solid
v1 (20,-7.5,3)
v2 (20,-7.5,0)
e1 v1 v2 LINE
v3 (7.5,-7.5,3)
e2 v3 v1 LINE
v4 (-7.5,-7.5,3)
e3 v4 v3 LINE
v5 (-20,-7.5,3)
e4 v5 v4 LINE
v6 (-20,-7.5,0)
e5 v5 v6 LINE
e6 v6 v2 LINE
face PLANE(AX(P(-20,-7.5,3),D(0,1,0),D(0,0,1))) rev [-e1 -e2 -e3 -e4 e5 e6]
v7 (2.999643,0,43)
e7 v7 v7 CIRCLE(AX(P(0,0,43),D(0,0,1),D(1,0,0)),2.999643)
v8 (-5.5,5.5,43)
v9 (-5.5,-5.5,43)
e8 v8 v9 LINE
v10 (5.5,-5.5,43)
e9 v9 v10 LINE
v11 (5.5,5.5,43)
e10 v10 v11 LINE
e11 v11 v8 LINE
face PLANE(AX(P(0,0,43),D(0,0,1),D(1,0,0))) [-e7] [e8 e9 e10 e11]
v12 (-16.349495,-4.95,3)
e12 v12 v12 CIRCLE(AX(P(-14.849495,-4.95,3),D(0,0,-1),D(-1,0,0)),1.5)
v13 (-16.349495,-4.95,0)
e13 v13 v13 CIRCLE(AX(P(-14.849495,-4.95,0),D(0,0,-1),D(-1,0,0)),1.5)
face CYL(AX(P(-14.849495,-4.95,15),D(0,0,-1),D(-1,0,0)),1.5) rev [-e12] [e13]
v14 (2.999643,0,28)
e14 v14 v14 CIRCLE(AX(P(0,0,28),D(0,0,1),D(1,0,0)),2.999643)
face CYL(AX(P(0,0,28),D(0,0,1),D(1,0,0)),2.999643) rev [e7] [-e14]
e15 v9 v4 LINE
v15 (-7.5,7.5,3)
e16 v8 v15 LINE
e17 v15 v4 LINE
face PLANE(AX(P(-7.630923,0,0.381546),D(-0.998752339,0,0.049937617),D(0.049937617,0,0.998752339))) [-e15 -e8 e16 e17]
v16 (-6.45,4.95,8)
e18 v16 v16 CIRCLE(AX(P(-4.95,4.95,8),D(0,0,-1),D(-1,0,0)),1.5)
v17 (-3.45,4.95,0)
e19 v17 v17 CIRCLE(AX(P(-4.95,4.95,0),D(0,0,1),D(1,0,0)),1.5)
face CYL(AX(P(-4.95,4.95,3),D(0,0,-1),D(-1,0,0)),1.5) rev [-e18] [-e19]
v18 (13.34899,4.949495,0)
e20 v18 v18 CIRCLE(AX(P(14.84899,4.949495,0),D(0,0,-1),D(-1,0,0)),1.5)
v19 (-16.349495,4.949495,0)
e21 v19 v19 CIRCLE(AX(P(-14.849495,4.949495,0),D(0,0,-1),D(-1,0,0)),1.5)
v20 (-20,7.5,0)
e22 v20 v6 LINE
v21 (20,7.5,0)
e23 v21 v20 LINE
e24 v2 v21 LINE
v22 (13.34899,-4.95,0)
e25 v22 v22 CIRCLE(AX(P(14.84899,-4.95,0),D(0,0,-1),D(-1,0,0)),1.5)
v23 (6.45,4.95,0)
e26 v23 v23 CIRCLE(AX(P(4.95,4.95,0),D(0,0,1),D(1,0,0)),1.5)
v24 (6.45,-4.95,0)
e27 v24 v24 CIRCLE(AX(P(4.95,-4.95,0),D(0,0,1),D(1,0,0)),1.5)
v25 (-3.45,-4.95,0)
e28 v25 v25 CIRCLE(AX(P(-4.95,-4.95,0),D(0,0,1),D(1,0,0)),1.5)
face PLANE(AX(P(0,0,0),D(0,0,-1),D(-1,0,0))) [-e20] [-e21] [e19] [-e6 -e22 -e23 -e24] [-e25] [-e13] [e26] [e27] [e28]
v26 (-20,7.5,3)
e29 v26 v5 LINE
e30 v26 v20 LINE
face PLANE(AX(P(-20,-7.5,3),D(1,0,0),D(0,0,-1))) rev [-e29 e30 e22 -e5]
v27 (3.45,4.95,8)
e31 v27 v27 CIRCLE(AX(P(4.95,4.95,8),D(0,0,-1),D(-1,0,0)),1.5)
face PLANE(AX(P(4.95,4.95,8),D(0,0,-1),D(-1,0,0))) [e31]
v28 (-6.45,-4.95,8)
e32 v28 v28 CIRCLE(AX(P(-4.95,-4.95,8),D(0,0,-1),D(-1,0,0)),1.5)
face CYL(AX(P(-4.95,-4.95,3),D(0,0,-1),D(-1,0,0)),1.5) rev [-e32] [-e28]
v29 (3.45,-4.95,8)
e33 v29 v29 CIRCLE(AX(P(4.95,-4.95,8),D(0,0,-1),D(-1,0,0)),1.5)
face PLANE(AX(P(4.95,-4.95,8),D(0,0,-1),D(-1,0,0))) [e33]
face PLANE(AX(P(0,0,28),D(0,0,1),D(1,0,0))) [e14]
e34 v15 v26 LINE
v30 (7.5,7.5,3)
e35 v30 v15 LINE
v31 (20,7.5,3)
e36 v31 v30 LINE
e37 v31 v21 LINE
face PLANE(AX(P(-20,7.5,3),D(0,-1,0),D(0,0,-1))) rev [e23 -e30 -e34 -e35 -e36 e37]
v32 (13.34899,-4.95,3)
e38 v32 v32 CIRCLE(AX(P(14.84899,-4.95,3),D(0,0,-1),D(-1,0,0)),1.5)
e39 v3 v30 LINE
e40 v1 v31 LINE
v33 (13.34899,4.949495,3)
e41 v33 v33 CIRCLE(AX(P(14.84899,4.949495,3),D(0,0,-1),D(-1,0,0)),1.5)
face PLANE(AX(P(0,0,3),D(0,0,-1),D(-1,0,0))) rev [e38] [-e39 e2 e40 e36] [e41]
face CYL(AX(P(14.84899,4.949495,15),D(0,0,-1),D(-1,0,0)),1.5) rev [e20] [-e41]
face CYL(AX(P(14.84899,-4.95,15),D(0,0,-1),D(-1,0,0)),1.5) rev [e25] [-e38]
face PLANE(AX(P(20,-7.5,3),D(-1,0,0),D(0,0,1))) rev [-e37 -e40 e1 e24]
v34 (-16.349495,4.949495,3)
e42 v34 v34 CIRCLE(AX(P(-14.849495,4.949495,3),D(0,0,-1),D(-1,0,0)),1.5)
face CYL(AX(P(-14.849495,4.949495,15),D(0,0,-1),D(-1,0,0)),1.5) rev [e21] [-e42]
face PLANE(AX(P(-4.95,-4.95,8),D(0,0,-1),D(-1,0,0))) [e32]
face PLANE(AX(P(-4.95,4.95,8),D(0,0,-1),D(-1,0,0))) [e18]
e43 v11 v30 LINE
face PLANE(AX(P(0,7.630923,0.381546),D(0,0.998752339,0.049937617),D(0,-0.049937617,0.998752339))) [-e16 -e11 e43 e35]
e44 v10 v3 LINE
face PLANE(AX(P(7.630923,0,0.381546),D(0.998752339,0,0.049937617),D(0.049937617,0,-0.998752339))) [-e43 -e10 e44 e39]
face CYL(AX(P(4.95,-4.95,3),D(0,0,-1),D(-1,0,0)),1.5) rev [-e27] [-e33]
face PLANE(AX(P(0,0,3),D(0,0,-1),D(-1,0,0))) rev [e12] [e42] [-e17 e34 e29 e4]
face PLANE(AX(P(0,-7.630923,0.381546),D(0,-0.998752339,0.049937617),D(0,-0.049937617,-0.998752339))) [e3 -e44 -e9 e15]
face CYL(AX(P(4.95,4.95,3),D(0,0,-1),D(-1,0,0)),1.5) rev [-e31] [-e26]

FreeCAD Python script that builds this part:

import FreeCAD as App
import Part
import Sketcher

V = App.Vector


def add_polygon(sketch, points):
    """Adds a closed chain of lines whose ends are joined by coincident constraints."""
    first, n = sketch.GeometryCount, len(points)
    for a, b in zip(points, points[1:] + points[:1]):
        sketch.addGeometry(Part.LineSegment(App.Vector(*a, 0), App.Vector(*b, 0)), False)
    for i in range(n):
        sketch.addConstraint(Sketcher.Constraint("Coincident", first + i, 2, first + (i + 1) % n, 1))

doc = App.newDocument("Part")
params = doc.addObject("Spreadsheet::Sheet", "Params")
for row, (alias, value) in enumerate([
    ("sketch1_diameter", "3 mm"),
    ("sketch1_width", "40 mm"),
    ("sketch1_height", "15 mm"),
    ("pad1_length", "3 mm"),
    ("sketch2_width", "11 mm"),
    ("sketch3_width", "15 mm"),
    ("sketch4_diameter", "3 mm"),
    ("pocket1_length", "8 mm"),
    ("pocket2_length", "15 mm"),
    ("sketch6_diameter", "3 mm"),
    ("pocket3_length", "15 mm"),
], start=1):
    params.set(f"A{row}", alias)
    params.set(f"B{row}", "=" + value)
    params.setAlias(f"B{row}", alias)

body = doc.addObject("PartDesign::Body", "Body")

# Sketch on XY plane
sketch1 = doc.addObject("Sketcher::SketchObject", "Sketch")
body.addObject(sketch1)
sketch1.AttachmentSupport = (doc.XY_Plane, [""])
sketch1.MapMode = "FlatFace"
add_polygon(sketch1, [(-20, 7.5), (-20, -7.5), (20, -7.5), (20, 7.5)])  # lines 0-3
sketch1.addGeometry(Part.Circle(V(-5, -5, 0), V(0, 0, 1), 1.5), False)  # 4
sketch1.addGeometry(Part.Circle(V(5, -5, 0), V(0, 0, 1), 1.5), False)  # 5
sketch1.addGeometry(Part.Circle(V(-5, 5, 0), V(0, 0, 1), 1.5), False)  # 6
sketch1.addGeometry(Part.Circle(V(5, 5, 0), V(0, 0, 1), 1.5), False)  # 7
sketch1.addConstraint([
    Sketcher.Constraint("Vertical", 0),
    Sketcher.Constraint("Horizontal", 1),
    Sketcher.Constraint("Vertical", 2),
    Sketcher.Constraint("Horizontal", 3),
    Sketcher.Constraint("Equal", 4, 5),
    Sketcher.Constraint("Equal", 5, 6),
    Sketcher.Constraint("Equal", 6, 7),
    Sketcher.Constraint("Symmetric", 5, 3, 6, 3, -1, 1),
    Sketcher.Constraint("Symmetric", 4, 3, 7, 3, -1, 1),
    Sketcher.Constraint("Symmetric", 0, 2, 2, 2, -1, 1),
    Sketcher.Constraint("Symmetric", 4, 3, 5, 3, -2),
    Sketcher.Constraint("Diameter", 4, 3.0),
    Sketcher.Constraint("DistanceX", 1, 1, 1, 2, 40.0),
    Sketcher.Constraint("DistanceY", 0, 2, 0, 1, 15.0),
    Sketcher.Constraint("DistanceX", 4, 3, 5, 3, 9.9),
    Sketcher.Constraint("DistanceY", 4, 3, 6, 3, 9.9),
])
sketch1.setExpression("Constraints[15]", "Params.sketch1_diameter")
sketch1.setExpression("Constraints[16]", "Params.sketch1_width")
sketch1.setExpression("Constraints[17]", "Params.sketch1_height")
pad1 = doc.addObject("PartDesign::Pad", "Pad")
body.addObject(pad1)
pad1.Profile = sketch1
pad1.setExpression("Length", "Params.pad1_length")

# Sketch on XY plane
sketch2 = doc.addObject("Sketcher::SketchObject", "Sketch001")
body.addObject(sketch2)
sketch2.AttachmentSupport = (doc.XY_Plane, [""])
sketch2.MapMode = "FlatFace"
sketch2.AttachmentOffset = App.Placement(V(0, 0, 43), App.Rotation())
add_polygon(sketch2, [(-6, -6), (6, -6), (6, 6), (-6, 6)])  # lines 0-3
sketch2.addConstraint([
    Sketcher.Constraint("Horizontal", 0),
    Sketcher.Constraint("Vertical", 1),
    Sketcher.Constraint("Horizontal", 2),
    Sketcher.Constraint("Vertical", 3),
    Sketcher.Constraint("Symmetric", 0, 2, 2, 2, -1, 1),
    Sketcher.Constraint("Equal", 2, 1),
    Sketcher.Constraint("DistanceX", 0, 1, 0, 2, 11.0),
])
sketch2.setExpression("Constraints[10]", "Params.sketch2_width")

# Sketch on XY plane
sketch3 = doc.addObject("Sketcher::SketchObject", "Sketch002")
body.addObject(sketch3)
sketch3.AttachmentSupport = (doc.XY_Plane, [""])
sketch3.MapMode = "FlatFace"
sketch3.AttachmentOffset = App.Placement(V(0, 0, 3), App.Rotation())
add_polygon(sketch3, [(-8, -8), (8, -8), (8, 8), (-8, 8)])  # lines 0-3
sketch3.addConstraint([
    Sketcher.Constraint("Horizontal", 0),
    Sketcher.Constraint("Vertical", 1),
    Sketcher.Constraint("Horizontal", 2),
    Sketcher.Constraint("Vertical", 3),
    Sketcher.Constraint("Symmetric", 0, 2, 2, 2, -1, 1),
    Sketcher.Constraint("Equal", 2, 1),
    Sketcher.Constraint("DistanceX", 0, 1, 0, 2, 15.0),
])
sketch3.setExpression("Constraints[10]", "Params.sketch3_width")

additiveloft = doc.addObject("PartDesign::AdditiveLoft", "AdditiveLoft")
body.addObject(additiveloft)
additiveloft.Profile = sketch2
additiveloft.Sections = [sketch3]

# Sketch on XY plane
sketch4 = doc.addObject("Sketcher::SketchObject", "Sketch003")
body.addObject(sketch4)
sketch4.AttachmentSupport = (doc.XY_Plane, [""])
sketch4.MapMode = "FlatFace"
sketch4.addGeometry([
    Part.Circle(V(-5, -5, 0), V(0, 0, 1), 1.5),
    Part.Circle(V(-5, 5, 0), V(0, 0, 1), 1.5),
    Part.Circle(V(5, 5, 0), V(0, 0, 1), 1.5),
    Part.Circle(V(5, -5, 0), V(0, 0, 1), 1.5),
], False)
sketch4.addConstraint([
    Sketcher.Constraint("Equal", 0, 1),
    Sketcher.Constraint("Equal", 1, 2),
    Sketcher.Constraint("Equal", 2, 3),
    Sketcher.Constraint("Symmetric", 0, 3, 2, 3, -1, 1),
    Sketcher.Constraint("Symmetric", 1, 3, 3, 3, -1, 1),
    Sketcher.Constraint("Symmetric", 1, 3, 2, 3, -2),
    Sketcher.Constraint("Diameter", 0, 3.0),
    Sketcher.Constraint("DistanceY", 0, 3, 1, 3, 9.9),
    Sketcher.Constraint("DistanceX", 1, 3, 2, 3, 9.9),
])
sketch4.setExpression("Constraints[6]", "Params.sketch4_diameter")
pocket1 = doc.addObject("PartDesign::Pocket", "Pocket")
body.addObject(pocket1)
pocket1.Profile = sketch4
pocket1.setExpression("Length", "Params.pocket1_length")
pocket1.Reversed = True

# Sketch on XY plane
sketch5 = doc.addObject("Sketcher::SketchObject", "Sketch004")
body.addObject(sketch5)
sketch5.AttachmentSupport = (doc.XY_Plane, [""])
sketch5.MapMode = "FlatFace"
sketch5.AttachmentOffset = App.Placement(V(0, 0, 43), App.Rotation())
sketch5.addGeometry(Part.Circle(V(0, 0, 0), V(0, 0, 1), 3), False)
sketch5.addConstraint([
    Sketcher.Constraint("Coincident", 0, 3, -1, 1),
    Sketcher.Constraint("Diameter", 0, 5.999286),
])
pocket2 = doc.addObject("PartDesign::Pocket", "Pocket001")
body.addObject(pocket2)
pocket2.Profile = sketch5
pocket2.setExpression("Length", "Params.pocket2_length")

# Sketch on XY plane
sketch6 = doc.addObject("Sketcher::SketchObject", "Sketch005")
body.addObject(sketch6)
sketch6.AttachmentSupport = (doc.XY_Plane, [""])
sketch6.MapMode = "FlatFace"
sketch6.addGeometry([
    Part.Circle(V(14.8, -5, 0), V(0, 0, 1), 1.5),
    Part.Circle(V(14.8, 4.9, 0), V(0, 0, 1), 1.5),
    Part.Circle(V(-14.8, 4.9, 0), V(0, 0, 1), 1.5),
    Part.Circle(V(-14.8, -5, 0), V(0, 0, 1), 1.5),
], False)
sketch6.addConstraint([
    Sketcher.Constraint("Equal", 0, 1),
    Sketcher.Constraint("Equal", 1, 2),
    Sketcher.Constraint("Equal", 2, 3),
    Sketcher.Constraint("Horizontal", 1, 3, 2, 3),
    Sketcher.Constraint("Horizontal", 0, 3, 3, 3),
    Sketcher.Constraint("Vertical", 0, 3, 1, 3),
    Sketcher.Constraint("Vertical", 2, 3, 3, 3),
    Sketcher.Constraint("Diameter", 0, 3.0),
    Sketcher.Constraint("DistanceY", 0, 3, -1, 1, 4.95),
    Sketcher.Constraint("DistanceX", -1, 1, 0, 3, 14.84899),
    Sketcher.Constraint("DistanceY", -1, 1, 1, 3, 4.949495),
    Sketcher.Constraint("DistanceX", 2, 3, -1, 1, 14.849495),
])
sketch6.setExpression("Constraints[7]", "Params.sketch6_diameter")
pocket3 = doc.addObject("PartDesign::Pocket", "Pocket002")
body.addObject(pocket3)
pocket3.Profile = sketch6
pocket3.setExpression("Length", "Params.pocket3_length")
pocket3.Reversed = True

doc.recompute()
